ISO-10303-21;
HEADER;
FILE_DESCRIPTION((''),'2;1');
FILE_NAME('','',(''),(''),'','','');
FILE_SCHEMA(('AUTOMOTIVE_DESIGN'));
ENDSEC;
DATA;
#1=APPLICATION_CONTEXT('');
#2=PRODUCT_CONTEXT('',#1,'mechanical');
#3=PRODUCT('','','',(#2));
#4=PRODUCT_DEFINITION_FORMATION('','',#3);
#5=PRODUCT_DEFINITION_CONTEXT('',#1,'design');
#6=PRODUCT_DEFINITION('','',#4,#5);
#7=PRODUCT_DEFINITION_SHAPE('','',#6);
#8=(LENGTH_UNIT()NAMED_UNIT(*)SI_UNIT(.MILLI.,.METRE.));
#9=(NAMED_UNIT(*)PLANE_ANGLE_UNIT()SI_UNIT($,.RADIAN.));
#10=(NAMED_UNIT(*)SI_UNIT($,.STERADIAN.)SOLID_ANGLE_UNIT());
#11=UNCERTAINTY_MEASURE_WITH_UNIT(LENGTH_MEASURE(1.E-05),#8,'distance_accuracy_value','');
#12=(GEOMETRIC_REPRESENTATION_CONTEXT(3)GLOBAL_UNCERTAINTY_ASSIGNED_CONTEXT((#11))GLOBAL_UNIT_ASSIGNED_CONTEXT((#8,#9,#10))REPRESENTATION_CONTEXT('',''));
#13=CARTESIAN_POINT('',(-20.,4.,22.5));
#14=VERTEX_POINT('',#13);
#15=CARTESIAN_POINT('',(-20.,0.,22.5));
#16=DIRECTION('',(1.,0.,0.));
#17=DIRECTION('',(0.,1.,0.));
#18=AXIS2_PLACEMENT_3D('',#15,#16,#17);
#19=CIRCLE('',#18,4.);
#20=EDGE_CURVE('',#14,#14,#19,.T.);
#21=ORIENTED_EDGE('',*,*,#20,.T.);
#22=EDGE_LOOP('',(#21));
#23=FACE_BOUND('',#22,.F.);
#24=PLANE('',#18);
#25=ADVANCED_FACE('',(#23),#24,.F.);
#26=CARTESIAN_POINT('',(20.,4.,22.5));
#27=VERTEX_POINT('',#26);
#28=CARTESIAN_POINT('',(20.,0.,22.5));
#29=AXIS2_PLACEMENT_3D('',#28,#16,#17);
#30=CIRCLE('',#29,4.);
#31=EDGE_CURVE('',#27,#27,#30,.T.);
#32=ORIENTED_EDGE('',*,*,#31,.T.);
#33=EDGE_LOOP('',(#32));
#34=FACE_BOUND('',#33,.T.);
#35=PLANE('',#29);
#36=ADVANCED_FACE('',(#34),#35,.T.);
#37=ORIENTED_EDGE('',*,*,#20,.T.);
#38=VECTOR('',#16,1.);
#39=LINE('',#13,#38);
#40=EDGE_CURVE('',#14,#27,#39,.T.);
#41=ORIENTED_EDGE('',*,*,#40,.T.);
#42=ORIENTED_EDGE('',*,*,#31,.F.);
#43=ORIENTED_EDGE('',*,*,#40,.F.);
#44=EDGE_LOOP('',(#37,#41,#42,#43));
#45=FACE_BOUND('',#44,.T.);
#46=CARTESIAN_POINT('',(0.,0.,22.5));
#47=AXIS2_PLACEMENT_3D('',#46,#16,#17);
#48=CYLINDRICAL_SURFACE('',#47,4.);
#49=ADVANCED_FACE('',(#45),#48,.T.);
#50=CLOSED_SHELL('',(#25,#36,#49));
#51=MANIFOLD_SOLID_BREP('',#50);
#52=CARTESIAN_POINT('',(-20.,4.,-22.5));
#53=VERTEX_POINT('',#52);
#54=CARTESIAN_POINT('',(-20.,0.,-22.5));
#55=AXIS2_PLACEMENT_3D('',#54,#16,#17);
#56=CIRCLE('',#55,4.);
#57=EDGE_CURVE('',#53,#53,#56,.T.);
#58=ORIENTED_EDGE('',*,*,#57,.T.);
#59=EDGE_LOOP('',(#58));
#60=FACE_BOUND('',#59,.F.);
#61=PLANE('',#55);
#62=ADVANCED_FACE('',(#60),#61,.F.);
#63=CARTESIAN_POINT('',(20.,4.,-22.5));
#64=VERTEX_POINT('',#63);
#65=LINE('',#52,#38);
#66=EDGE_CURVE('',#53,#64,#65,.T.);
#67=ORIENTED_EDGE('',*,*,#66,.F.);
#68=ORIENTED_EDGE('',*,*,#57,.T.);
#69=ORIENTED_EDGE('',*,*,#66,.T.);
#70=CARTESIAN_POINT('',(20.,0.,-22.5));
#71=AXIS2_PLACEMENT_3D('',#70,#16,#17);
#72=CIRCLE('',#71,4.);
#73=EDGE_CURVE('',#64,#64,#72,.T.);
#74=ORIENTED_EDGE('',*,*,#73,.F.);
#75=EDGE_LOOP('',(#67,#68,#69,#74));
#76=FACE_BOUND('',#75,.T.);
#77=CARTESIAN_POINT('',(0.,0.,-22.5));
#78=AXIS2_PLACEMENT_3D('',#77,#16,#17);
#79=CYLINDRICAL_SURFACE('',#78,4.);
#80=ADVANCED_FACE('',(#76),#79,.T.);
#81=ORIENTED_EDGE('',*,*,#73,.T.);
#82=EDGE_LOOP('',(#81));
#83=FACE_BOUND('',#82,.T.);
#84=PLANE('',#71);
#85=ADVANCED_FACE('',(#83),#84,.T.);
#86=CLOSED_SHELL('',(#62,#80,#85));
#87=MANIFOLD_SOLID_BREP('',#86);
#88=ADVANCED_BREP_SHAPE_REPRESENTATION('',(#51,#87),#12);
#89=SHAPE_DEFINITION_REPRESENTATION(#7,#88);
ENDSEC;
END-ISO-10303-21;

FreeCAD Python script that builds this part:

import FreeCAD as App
import Part
import Sketcher
Q = App.Units.Quantity

doc = App.newDocument("Part")
body = doc.addObject("PartDesign::Body", "Body")
body.AllowCompound = True

# Sketch on YZ plane
sketch1 = body.newObject("Sketcher::SketchObject", "Sketch")
sketch1.AttachmentSupport = (doc.getObject("YZ_Plane"), [""])
sketch1.MapMode = "FlatFace"
sketch1.addGeometry(Part.Circle(App.Vector(0, 22.5, 0), App.Vector(0, 0, 1), 4), False)
sketch1.addGeometry(Part.Circle(App.Vector(0, -22.5, 0), App.Vector(0, 0, 1), 4), False)
sketch1.addConstraint(Sketcher.Constraint("Equal", 0, 1))
sketch1.addConstraint(Sketcher.Constraint("Symmetric", 0, 3, 1, 3, -1, 1))
sketch1.addConstraint(Sketcher.Constraint("PointOnObject", 0, 3, -2))
sketch1.addConstraint(Sketcher.Constraint("Diameter", 0, Q("8 mm")))
sketch1.addConstraint(Sketcher.Constraint("DistanceY", 1, 3, 0, 3, Q("45 mm")))
pad1 = body.newObject("PartDesign::Pad", "Pad")
pad1.Profile = sketch1
pad1.Type = "TwoLengths"
pad1.Length = 20
pad1.Length2 = 20

doc.recompute()
